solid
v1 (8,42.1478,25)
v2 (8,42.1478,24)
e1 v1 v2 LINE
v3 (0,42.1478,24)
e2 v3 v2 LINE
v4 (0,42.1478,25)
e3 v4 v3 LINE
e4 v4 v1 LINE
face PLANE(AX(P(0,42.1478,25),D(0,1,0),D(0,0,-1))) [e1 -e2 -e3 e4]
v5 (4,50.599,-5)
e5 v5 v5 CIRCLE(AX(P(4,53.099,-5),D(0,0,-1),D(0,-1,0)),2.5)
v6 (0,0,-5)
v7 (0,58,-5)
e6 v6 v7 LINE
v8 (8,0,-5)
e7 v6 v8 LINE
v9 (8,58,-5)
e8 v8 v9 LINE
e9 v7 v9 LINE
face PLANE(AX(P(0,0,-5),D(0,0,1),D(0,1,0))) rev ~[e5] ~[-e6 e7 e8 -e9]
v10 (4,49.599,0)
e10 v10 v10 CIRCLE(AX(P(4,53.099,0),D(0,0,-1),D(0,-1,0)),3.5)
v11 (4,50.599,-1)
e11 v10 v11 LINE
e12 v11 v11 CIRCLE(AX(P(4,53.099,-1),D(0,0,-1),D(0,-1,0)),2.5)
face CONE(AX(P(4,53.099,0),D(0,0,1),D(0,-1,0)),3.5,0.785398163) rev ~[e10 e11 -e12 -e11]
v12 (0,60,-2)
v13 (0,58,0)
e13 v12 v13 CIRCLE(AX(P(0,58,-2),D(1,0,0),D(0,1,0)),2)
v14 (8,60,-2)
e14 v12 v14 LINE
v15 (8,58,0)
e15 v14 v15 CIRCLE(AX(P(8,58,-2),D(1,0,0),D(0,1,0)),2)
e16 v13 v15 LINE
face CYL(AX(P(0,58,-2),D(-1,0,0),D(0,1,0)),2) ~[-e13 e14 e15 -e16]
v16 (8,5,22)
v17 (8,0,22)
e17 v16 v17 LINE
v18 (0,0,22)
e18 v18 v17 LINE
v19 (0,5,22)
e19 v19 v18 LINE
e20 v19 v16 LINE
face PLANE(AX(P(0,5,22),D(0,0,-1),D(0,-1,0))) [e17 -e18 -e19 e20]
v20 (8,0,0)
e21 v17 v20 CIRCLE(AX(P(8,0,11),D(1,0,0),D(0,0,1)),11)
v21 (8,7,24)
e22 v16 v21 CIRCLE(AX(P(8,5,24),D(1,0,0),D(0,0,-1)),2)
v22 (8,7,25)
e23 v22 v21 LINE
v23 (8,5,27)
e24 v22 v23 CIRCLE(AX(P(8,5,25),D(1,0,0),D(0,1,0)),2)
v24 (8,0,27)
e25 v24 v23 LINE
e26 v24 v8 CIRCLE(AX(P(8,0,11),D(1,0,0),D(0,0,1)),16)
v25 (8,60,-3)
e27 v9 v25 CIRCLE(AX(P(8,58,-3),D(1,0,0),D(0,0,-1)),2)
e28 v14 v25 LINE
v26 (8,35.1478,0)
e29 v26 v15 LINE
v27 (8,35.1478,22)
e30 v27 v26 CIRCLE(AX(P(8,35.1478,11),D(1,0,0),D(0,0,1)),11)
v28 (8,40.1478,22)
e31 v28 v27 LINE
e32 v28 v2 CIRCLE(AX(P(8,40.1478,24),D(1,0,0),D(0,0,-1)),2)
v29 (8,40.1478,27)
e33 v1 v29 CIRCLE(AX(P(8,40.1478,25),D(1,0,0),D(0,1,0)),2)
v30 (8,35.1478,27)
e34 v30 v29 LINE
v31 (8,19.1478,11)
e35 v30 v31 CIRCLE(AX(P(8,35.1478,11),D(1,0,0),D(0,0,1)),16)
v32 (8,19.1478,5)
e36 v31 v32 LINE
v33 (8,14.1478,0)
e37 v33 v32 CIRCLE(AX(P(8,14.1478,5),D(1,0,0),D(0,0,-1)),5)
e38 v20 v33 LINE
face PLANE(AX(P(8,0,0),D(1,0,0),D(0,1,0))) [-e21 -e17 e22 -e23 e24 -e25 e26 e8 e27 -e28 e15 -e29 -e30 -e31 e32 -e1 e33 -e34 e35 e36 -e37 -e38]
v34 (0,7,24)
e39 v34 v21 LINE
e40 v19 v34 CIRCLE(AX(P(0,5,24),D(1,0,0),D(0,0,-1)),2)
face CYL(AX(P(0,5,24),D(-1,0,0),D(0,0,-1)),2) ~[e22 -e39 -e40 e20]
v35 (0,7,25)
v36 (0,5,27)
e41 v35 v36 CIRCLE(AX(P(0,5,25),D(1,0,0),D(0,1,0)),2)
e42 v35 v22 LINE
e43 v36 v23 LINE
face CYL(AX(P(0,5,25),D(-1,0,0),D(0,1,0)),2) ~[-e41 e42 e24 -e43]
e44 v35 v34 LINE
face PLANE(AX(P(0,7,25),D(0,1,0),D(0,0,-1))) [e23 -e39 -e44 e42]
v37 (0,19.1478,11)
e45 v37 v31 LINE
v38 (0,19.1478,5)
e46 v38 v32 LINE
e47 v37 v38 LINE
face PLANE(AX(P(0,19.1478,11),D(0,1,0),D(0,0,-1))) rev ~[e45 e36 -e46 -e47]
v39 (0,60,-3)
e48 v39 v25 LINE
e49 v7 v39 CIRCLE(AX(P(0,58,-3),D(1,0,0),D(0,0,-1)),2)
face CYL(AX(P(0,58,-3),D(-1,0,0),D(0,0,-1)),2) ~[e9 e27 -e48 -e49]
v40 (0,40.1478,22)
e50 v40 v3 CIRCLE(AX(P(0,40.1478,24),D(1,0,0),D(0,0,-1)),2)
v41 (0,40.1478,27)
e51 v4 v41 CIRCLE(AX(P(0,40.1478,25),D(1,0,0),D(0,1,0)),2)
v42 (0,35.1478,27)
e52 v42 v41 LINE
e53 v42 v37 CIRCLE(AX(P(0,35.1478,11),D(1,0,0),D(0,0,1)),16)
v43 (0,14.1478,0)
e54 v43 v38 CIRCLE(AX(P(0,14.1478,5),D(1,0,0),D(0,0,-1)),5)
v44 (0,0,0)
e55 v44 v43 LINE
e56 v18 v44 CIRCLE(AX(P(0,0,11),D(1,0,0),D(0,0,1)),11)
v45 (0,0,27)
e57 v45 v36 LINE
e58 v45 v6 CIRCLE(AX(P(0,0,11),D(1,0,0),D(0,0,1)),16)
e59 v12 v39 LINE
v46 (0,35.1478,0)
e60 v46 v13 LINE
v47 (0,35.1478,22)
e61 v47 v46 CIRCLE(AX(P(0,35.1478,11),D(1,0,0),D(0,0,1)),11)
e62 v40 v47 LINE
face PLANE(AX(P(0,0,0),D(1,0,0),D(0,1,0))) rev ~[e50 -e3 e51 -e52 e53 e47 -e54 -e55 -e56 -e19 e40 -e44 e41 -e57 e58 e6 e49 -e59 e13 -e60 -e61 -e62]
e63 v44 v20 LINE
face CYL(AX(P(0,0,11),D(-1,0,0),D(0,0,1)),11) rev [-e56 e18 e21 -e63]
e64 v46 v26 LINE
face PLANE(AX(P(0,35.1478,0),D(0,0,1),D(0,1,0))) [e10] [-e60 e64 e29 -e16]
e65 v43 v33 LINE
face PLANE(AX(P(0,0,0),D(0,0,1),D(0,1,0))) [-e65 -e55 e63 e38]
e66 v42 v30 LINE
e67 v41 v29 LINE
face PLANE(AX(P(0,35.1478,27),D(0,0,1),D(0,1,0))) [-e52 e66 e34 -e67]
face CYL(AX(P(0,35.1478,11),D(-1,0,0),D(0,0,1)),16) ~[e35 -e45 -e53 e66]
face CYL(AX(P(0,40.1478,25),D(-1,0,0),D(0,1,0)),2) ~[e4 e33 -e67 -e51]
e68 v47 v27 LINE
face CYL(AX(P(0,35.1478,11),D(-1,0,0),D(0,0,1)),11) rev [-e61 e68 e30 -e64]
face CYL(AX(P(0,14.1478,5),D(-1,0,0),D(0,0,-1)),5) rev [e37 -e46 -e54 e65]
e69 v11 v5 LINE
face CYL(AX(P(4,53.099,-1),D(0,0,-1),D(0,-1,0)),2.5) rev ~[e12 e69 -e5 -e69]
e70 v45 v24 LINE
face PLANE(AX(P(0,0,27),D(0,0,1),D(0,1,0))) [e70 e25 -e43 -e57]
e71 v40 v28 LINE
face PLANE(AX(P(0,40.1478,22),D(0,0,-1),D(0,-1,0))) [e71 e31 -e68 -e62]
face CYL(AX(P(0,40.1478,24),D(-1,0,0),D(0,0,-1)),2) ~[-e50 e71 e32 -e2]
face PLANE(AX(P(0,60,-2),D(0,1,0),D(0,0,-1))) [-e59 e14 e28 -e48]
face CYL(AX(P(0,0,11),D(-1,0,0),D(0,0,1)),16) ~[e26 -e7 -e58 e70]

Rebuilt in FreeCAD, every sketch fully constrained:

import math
import FreeCAD as App
import Part
import Sketcher
from FreeCAD import Vector

doc = App.newDocument("Part")
body = doc.addObject("PartDesign::Body", "Body")

sketch1 = body.newObject("Sketcher::SketchObject", "Sketch")
sketch1.AttachmentSupport = (doc.getObject("YZ_Plane"), [""])
sketch1.MapMode = "FlatFace"
sketch1.addGeometry([
    Part.ArcOfCircle(Part.Circle(Vector(0, 11, 0), Vector(0, 0, 1), 11), math.radians(90), math.radians(270)),
    Part.LineSegment(Vector(0, 22, 0), Vector(5, 22, 0)),
    Part.ArcOfCircle(Part.Circle(Vector(5, 24, 0), Vector(0, 0, 1), 2), math.radians(-90), math.radians(0)),
    Part.LineSegment(Vector(7, 24, 0), Vector(7, 25, 0)),
    Part.ArcOfCircle(Part.Circle(Vector(5, 25, 0), Vector(0, 0, 1), 2), math.radians(0), math.radians(90)),
    Part.LineSegment(Vector(5, 27, 0), Vector(0, 27, 0)),
    Part.ArcOfCircle(Part.Circle(Vector(0, 11, 0), Vector(0, 0, 1), 16), math.radians(90), math.radians(270)),
    Part.LineSegment(Vector(0, -5, 0), Vector(58, -5, 0)),
    Part.ArcOfCircle(Part.Circle(Vector(58, -3, 0), Vector(0, 0, 1), 2), math.radians(-90), math.radians(0)),
    Part.LineSegment(Vector(60, -3, 0), Vector(60, -2, 0)),
    Part.ArcOfCircle(Part.Circle(Vector(58, -2, 0), Vector(0, 0, 1), 2), math.radians(0), math.radians(90)),
    Part.LineSegment(Vector(58, 0, 0), Vector(35.1, 0, 0)),
    Part.ArcOfCircle(Part.Circle(Vector(35.1, 11, 0), Vector(0, 0, 1), 11), math.radians(90), math.radians(270)),
    Part.LineSegment(Vector(35.1, 22, 0), Vector(40.1, 22, 0)),
    Part.ArcOfCircle(Part.Circle(Vector(40.1, 24, 0), Vector(0, 0, 1), 2), math.radians(-90), math.radians(0)),
    Part.LineSegment(Vector(42.1, 24, 0), Vector(42.1, 25, 0)),
    Part.ArcOfCircle(Part.Circle(Vector(40.1, 25, 0), Vector(0, 0, 1), 2), math.radians(0), math.radians(90)),
    Part.LineSegment(Vector(40.1, 27, 0), Vector(35.1, 27, 0)),
    Part.ArcOfCircle(Part.Circle(Vector(35.1, 11, 0), Vector(0, 0, 1), 16), math.radians(90), math.radians(180)),
    Part.LineSegment(Vector(19.1, 11, 0), Vector(19.1, 5, 0)),
    Part.ArcOfCircle(Part.Circle(Vector(14.1, 5, 0), Vector(0, 0, 1), 5), math.radians(-90), math.radians(0)),
    Part.LineSegment(Vector(14.1, 0, 0), Vector(0, 0, 0)),
], False)
sketch1.addConstraint([
    Sketcher.Constraint("Tangent", 0, 1, 1, 1),
    Sketcher.Constraint("Tangent", 1, 2, 2, 1),
    Sketcher.Constraint("Tangent", 2, 2, 3, 1),
    Sketcher.Constraint("Tangent", 3, 2, 4, 1),
    Sketcher.Constraint("Tangent", 4, 2, 5, 1),
    Sketcher.Constraint("Tangent", 5, 2, 6, 1),
    Sketcher.Constraint("Tangent", 6, 2, 7, 1),
    Sketcher.Constraint("Tangent", 7, 2, 8, 1),
    Sketcher.Constraint("Tangent", 8, 2, 9, 1),
    Sketcher.Constraint("Tangent", 9, 2, 10, 1),
    Sketcher.Constraint("Tangent", 10, 2, 11, 1),
    Sketcher.Constraint("Tangent", 11, 2, 12, 2),
    Sketcher.Constraint("Tangent", 12, 1, 13, 1),
    Sketcher.Constraint("Tangent", 13, 2, 14, 1),
    Sketcher.Constraint("Tangent", 14, 2, 15, 1),
    Sketcher.Constraint("Tangent", 15, 2, 16, 1),
    Sketcher.Constraint("Tangent", 16, 2, 17, 1),
    Sketcher.Constraint("Tangent", 17, 2, 18, 1),
    Sketcher.Constraint("Tangent", 18, 2, 19, 1),
    Sketcher.Constraint("Tangent", 19, 2, 20, 2),
    Sketcher.Constraint("Tangent", 20, 1, 21, 1),
    Sketcher.Constraint("Tangent", 21, 2, 0, 2),
    Sketcher.Constraint("Horizontal", 1),
    Sketcher.Constraint("Vertical", 3),
    Sketcher.Constraint("Horizontal", 5),
    Sketcher.Constraint("Horizontal", 7),
    Sketcher.Constraint("Vertical", 9),
    Sketcher.Constraint("Horizontal", 11),
    Sketcher.Constraint("Horizontal", 13),
    Sketcher.Constraint("Vertical", 15),
    Sketcher.Constraint("Horizontal", 17),
    Sketcher.Constraint("Vertical", 19),
    Sketcher.Constraint("Horizontal", 21),
    Sketcher.Constraint("Coincident", 21, 2, -1, 1),
    Sketcher.Constraint("Coincident", 6, 3, 0, 3),
    Sketcher.Constraint("Coincident", 18, 3, 12, 3),
    Sketcher.Constraint("Equal", 2, 4),
    Sketcher.Constraint("Equal", 4, 8),
    Sketcher.Constraint("Equal", 8, 10),
    Sketcher.Constraint("Equal", 0, 12),
    Sketcher.Constraint("Equal", 10, 14),
    Sketcher.Constraint("Equal", 14, 16),
    Sketcher.Constraint("Equal", 6, 18),
    Sketcher.Constraint("PointOnObject", 10, 2, -1),
    Sketcher.Constraint("Equal", 5, 13),
    Sketcher.Constraint("Radius", 0, 11.0),
    Sketcher.Constraint("Radius", 2, 2.0),
    Sketcher.Constraint("Radius", 20, 5.0),
    Sketcher.Constraint("DistanceX", 1, 1, 1, 2, 5.0),
    Sketcher.Constraint("DistanceY", 6, 2, -1, 1, 5.0),
    Sketcher.Constraint("DistanceX", -1, 1, 8, 2, 60.0),
    Sketcher.Constraint("DistanceX", 11, 2, 11, 1, 22.8522),
])
pad1 = body.newObject("PartDesign::Pad", "Pad")
pad1.Profile = sketch1
pad1.Length = 8

sketch2 = body.newObject("Sketcher::SketchObject", "Sketch001")
sketch2.AttachmentSupport = (doc.getObject("XY_Plane"), [""])
sketch2.MapMode = "FlatFace"
sketch2.addGeometry(Part.Circle(Vector(4, 53.1, 0), Vector(0, 0, 1), 2.5), False)
sketch2.addConstraint([
    Sketcher.Constraint("Diameter", 0, 5.0),
    Sketcher.Constraint("DistanceX", -1, 1, 0, 3, 4.0),
    Sketcher.Constraint("DistanceY", -1, 1, 0, 3, 53.099),
])
doc.recompute()
hole = body.newObject("PartDesign::Hole", "Hole")
hole.Profile = sketch2
hole.ThreadType = "None"
hole.Diameter = 5
hole.DepthType = "ThroughAll"
hole.HoleCutType = "Countersink"
hole.HoleCutDiameter = 7
hole.HoleCutCountersinkAngle = 90

doc.recompute()
